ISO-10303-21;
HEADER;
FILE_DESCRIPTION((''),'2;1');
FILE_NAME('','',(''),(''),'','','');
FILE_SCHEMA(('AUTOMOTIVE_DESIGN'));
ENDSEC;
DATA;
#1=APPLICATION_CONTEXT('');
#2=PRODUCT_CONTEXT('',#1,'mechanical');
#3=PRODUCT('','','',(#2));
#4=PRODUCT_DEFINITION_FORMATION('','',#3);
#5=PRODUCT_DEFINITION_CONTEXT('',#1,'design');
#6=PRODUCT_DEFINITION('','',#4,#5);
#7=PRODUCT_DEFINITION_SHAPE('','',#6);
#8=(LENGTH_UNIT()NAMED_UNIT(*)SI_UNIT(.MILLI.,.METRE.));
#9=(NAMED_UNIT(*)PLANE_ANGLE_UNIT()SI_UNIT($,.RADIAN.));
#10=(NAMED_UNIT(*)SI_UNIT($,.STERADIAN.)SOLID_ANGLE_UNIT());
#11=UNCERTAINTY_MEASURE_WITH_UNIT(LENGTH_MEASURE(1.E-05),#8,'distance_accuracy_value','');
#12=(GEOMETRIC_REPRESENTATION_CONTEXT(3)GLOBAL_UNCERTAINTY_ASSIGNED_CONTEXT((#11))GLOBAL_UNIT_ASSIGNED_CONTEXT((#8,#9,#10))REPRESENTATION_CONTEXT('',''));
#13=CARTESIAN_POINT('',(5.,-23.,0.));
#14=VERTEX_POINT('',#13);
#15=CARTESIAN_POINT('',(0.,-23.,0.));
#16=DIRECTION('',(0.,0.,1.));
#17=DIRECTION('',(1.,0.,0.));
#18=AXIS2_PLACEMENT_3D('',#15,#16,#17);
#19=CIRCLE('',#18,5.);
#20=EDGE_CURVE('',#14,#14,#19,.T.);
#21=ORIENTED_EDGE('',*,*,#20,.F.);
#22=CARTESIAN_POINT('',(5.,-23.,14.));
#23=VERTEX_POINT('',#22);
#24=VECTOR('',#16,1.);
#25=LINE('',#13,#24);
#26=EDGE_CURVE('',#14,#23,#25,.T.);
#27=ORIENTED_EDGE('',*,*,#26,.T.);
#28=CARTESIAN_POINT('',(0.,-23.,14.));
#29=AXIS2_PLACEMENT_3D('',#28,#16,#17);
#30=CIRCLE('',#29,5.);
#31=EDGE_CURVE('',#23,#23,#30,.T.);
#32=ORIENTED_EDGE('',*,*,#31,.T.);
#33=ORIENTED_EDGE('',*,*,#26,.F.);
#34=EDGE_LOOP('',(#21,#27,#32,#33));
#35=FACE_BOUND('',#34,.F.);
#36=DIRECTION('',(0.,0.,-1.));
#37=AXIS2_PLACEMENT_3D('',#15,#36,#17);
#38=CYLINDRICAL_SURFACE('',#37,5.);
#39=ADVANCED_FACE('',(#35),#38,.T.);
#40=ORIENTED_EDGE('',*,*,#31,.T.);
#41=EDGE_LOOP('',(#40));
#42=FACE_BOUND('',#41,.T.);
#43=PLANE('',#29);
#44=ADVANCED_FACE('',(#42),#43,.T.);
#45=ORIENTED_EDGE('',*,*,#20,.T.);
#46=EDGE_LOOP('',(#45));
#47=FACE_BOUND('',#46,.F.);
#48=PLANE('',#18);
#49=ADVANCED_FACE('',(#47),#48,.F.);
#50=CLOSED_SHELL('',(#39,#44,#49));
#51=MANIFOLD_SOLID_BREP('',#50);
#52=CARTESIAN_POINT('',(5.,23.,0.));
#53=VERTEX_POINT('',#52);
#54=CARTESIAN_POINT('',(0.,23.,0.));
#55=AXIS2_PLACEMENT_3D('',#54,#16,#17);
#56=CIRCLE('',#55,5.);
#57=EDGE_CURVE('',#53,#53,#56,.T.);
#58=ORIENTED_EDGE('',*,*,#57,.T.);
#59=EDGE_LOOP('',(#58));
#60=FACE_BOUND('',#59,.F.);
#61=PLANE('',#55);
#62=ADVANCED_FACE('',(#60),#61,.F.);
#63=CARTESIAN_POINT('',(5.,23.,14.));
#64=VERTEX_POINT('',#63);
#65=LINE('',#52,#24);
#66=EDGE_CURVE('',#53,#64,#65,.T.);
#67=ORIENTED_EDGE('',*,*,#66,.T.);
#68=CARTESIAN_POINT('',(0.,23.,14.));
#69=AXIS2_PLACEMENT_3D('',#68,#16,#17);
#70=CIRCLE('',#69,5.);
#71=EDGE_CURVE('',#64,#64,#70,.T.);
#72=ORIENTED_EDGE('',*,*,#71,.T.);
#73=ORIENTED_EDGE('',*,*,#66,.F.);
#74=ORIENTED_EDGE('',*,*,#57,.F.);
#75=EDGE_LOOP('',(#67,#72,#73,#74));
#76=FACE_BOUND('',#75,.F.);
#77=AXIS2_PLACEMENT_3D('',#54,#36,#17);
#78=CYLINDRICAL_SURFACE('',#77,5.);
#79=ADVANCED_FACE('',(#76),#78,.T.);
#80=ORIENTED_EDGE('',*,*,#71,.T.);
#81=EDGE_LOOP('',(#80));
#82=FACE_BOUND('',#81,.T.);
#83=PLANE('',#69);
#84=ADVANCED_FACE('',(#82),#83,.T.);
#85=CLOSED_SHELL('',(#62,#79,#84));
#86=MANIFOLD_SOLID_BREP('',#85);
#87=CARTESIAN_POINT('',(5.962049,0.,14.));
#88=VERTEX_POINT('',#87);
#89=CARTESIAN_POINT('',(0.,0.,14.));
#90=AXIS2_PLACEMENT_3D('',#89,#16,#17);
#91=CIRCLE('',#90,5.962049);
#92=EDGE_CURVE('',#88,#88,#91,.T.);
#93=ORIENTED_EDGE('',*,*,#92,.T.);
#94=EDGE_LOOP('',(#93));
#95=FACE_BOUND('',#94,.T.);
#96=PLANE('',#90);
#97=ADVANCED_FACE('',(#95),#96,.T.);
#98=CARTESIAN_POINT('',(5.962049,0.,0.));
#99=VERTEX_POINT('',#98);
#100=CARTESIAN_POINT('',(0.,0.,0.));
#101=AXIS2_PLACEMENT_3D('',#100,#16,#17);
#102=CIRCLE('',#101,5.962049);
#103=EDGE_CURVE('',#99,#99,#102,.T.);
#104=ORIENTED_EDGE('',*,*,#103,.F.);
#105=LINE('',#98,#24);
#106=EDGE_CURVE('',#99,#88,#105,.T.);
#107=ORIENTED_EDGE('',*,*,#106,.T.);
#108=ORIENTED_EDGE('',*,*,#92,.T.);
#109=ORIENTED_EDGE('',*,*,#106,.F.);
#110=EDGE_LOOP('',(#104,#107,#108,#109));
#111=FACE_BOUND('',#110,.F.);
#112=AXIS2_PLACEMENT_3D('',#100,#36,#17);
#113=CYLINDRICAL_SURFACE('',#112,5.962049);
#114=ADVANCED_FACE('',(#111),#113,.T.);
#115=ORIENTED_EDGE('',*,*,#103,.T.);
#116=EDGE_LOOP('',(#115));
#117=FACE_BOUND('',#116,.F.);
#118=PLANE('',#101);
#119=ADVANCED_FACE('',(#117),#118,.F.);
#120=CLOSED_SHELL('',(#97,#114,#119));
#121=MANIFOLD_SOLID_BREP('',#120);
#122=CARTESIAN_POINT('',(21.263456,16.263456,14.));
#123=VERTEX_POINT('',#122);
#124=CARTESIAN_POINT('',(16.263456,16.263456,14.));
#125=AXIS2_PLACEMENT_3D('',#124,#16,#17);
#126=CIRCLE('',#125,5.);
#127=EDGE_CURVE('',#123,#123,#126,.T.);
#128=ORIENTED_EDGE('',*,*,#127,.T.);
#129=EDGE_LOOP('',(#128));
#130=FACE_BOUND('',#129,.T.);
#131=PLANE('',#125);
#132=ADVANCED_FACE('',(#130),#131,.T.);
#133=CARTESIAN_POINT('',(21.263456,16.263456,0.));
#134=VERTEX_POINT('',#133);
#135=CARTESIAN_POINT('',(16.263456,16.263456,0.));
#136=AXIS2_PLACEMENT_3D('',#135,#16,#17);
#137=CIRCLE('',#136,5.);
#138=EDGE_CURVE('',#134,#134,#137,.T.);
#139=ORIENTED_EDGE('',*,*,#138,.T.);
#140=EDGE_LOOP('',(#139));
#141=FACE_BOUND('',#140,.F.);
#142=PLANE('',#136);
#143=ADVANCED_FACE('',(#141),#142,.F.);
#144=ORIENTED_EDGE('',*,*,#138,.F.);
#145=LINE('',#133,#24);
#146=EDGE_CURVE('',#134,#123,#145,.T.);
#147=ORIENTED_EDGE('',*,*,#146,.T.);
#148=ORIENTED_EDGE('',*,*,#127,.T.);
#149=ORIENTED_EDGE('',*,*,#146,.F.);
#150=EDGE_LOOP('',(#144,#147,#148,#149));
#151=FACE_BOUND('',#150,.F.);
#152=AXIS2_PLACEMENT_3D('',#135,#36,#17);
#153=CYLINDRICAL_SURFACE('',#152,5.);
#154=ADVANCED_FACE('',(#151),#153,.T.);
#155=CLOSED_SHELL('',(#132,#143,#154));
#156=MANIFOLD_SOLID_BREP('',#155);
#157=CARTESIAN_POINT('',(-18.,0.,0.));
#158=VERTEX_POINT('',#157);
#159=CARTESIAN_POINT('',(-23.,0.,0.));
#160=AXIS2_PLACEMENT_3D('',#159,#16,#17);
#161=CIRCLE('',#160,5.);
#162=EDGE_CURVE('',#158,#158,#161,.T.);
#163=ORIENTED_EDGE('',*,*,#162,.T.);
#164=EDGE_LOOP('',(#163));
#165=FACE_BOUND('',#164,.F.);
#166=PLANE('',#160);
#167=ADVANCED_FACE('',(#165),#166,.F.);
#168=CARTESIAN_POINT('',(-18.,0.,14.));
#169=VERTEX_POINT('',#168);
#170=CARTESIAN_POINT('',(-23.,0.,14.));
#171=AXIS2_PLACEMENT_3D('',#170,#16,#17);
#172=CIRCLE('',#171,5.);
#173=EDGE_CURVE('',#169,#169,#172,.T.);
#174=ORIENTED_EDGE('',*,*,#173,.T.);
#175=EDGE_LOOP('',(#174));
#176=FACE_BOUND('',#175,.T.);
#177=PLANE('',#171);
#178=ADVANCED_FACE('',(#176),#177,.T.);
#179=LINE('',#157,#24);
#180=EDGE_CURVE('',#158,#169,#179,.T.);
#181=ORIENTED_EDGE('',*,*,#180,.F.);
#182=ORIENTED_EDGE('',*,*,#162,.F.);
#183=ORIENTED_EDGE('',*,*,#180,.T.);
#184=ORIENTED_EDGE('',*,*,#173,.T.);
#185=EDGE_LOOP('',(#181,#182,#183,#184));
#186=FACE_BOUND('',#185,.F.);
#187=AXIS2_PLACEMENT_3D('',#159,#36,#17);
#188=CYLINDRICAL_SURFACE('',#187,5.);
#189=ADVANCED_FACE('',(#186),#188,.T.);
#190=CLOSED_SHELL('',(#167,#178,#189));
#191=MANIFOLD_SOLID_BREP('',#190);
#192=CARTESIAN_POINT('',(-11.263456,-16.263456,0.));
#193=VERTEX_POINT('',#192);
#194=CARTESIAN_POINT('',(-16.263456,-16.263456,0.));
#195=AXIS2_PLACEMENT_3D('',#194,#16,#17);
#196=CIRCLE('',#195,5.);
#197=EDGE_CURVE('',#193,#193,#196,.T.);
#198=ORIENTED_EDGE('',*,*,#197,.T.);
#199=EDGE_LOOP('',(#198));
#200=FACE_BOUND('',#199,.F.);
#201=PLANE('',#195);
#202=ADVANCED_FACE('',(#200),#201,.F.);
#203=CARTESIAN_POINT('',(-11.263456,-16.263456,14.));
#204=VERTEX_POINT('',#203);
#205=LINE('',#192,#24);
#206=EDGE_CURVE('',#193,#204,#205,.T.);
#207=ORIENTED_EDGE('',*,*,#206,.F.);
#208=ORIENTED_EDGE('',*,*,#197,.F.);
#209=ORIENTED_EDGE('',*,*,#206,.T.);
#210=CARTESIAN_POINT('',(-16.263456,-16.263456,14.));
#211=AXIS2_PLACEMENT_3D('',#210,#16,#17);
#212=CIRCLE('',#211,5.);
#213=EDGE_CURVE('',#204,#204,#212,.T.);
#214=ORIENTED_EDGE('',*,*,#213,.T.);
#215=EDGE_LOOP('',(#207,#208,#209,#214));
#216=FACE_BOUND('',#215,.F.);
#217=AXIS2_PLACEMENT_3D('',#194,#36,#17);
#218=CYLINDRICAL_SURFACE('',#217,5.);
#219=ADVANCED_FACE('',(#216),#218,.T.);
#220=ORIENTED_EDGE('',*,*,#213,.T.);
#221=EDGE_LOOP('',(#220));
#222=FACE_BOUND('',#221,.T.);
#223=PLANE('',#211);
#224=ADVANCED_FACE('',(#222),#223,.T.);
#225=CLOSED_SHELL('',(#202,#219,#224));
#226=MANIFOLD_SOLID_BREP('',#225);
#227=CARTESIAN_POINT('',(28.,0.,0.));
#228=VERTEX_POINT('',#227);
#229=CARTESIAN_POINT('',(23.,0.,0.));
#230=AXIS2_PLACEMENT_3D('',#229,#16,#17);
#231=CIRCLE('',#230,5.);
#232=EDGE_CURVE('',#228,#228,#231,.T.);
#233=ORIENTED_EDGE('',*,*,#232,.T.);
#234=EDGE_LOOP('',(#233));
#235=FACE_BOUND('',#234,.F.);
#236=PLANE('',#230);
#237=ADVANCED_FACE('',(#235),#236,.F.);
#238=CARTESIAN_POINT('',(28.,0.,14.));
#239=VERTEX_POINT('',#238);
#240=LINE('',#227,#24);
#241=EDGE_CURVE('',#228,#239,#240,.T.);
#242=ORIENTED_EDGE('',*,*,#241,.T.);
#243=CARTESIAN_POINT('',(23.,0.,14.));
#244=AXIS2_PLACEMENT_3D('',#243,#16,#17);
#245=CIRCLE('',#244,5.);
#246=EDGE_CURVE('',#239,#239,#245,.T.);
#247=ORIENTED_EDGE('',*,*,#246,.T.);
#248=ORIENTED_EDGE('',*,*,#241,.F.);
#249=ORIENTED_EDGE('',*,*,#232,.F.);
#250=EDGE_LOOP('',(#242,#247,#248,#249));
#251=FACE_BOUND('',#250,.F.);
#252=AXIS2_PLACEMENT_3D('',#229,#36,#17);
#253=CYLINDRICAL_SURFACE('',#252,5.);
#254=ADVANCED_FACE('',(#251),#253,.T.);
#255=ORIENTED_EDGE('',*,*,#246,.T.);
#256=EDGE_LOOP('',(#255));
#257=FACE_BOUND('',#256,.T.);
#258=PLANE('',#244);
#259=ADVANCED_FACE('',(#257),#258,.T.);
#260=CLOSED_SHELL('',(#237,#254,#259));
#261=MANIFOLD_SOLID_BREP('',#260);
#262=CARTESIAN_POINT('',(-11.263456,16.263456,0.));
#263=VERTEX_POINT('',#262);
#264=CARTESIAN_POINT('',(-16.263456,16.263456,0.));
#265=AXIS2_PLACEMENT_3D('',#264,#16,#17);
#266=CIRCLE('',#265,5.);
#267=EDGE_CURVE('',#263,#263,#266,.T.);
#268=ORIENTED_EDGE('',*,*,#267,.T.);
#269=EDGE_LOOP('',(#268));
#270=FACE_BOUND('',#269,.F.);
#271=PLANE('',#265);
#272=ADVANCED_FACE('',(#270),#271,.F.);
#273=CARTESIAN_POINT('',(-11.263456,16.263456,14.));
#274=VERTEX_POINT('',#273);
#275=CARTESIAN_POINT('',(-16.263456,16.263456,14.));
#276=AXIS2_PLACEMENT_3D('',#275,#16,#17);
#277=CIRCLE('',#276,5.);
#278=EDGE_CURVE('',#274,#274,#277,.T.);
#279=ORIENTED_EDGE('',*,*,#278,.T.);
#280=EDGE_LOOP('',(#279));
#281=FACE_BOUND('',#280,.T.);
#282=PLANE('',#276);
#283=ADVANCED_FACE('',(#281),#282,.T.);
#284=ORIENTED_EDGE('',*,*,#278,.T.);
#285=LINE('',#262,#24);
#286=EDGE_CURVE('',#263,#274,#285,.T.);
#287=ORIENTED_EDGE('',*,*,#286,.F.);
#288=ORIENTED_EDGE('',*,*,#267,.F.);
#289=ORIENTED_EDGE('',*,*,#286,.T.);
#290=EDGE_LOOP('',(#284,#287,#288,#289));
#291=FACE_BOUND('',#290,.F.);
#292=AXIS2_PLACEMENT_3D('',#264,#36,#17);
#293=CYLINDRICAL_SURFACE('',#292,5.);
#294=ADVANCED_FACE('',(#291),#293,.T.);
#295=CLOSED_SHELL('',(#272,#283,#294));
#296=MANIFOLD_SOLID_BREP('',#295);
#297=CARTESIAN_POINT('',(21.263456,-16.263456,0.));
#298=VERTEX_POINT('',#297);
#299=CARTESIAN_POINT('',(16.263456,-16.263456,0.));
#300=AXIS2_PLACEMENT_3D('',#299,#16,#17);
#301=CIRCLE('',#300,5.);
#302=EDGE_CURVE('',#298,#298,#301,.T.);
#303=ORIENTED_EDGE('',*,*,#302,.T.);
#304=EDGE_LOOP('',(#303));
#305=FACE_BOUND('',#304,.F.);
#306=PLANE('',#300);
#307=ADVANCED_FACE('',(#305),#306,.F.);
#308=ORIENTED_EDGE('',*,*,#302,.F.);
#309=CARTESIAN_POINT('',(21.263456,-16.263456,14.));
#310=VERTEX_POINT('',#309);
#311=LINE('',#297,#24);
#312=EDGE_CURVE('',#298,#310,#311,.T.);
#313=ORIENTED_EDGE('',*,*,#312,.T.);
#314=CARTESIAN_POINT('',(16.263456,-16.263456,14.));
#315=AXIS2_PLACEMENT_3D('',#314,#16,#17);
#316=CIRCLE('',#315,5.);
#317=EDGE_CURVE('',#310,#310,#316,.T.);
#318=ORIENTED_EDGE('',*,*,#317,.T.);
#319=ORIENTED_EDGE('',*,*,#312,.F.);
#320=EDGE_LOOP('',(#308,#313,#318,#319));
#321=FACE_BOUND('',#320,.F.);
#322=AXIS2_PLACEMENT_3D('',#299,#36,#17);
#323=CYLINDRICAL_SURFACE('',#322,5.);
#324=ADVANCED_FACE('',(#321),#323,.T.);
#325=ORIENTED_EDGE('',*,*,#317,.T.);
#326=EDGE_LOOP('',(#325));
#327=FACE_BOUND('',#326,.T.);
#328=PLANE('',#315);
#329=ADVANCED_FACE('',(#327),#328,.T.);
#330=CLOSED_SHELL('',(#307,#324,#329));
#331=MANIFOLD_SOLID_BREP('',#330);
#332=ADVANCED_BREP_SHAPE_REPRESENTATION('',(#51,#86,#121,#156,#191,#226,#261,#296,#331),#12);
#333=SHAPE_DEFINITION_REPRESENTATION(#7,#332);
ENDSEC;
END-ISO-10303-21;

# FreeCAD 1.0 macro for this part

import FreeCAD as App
import Part
import Sketcher
from FreeCAD import Vector

doc = App.newDocument("Part")
body = doc.addObject("PartDesign::Body", "Body")
body.AllowCompound = True

sketch1 = doc.addObject("Sketcher::SketchObject", "Sketch")
body.addObject(sketch1)
sketch1.AttachmentSupport = (doc.XY_Plane, [""])
sketch1.MapMode = "FlatFace"
sketch1.addGeometry(Part.Circle(Vector(0, 0, 0), Vector(0, 0, 1), 6), False)
sketch1.addGeometry(Part.Circle(Vector(0, 23, 0), Vector(0, 0, 1), 5), False)
sketch1.addGeometry(Part.Circle(Vector(-16, 16, 0), Vector(0, 0, 1), 5), False)
sketch1.addGeometry(Part.Circle(Vector(-23, 0, 0), Vector(0, 0, 1), 5), False)
sketch1.addGeometry(Part.Circle(Vector(-16, -16, 0), Vector(0, 0, 1), 5), False)
sketch1.addGeometry(Part.Circle(Vector(0, -23, 0), Vector(0, 0, 1), 5), False)
sketch1.addGeometry(Part.Circle(Vector(16, -16, 0), Vector(0, 0, 1), 5), False)
sketch1.addGeometry(Part.Circle(Vector(23, 0, 0), Vector(0, 0, 1), 5), False)
sketch1.addGeometry(Part.Circle(Vector(16, 16, 0), Vector(0, 0, 1), 5), False)
sketch1.addConstraint(Sketcher.Constraint("Coincident", 0, 3, -1, 1))
sketch1.addConstraint(Sketcher.Constraint("Equal", 1, 2))
sketch1.addConstraint(Sketcher.Constraint("Equal", 2, 3))
sketch1.addConstraint(Sketcher.Constraint("Equal", 3, 4))
sketch1.addConstraint(Sketcher.Constraint("Equal", 4, 5))
sketch1.addConstraint(Sketcher.Constraint("Equal", 5, 6))
sketch1.addConstraint(Sketcher.Constraint("Equal", 6, 7))
sketch1.addConstraint(Sketcher.Constraint("Equal", 7, 8))
sketch1.addConstraint(Sketcher.Constraint("Symmetric", 1, 3, 5, 3, -1, 1))
sketch1.addConstraint(Sketcher.Constraint("Symmetric", 2, 3, 6, 3, -1, 1))
sketch1.addConstraint(Sketcher.Constraint("Symmetric", 3, 3, 7, 3, -1, 1))
sketch1.addConstraint(Sketcher.Constraint("Symmetric", 4, 3, 8, 3, -1, 1))
sketch1.addConstraint(Sketcher.Constraint("Symmetric", 4, 3, 6, 3, -2))
sketch1.addConstraint(Sketcher.Constraint("PointOnObject", 1, 3, -2))
sketch1.addConstraint(Sketcher.Constraint("PointOnObject", 3, 3, -1))
sketch1.addConstraint(Sketcher.Constraint("Diameter", 1, 10.0))
sketch1.addConstraint(Sketcher.Constraint("DistanceY", -1, 1, 1, 3, 23.0))
sketch1.addConstraint(Sketcher.Constraint("DistanceX", 3, 3, -1, 1, 23.0))
sketch1.addConstraint(Sketcher.Constraint("Diameter", 0, 11.924098))
sketch1.addConstraint(Sketcher.Constraint("DistanceX", 2, 3, -1, 1, 16.263456))
sketch1.addConstraint(Sketcher.Constraint("DistanceY", -1, 1, 2, 3, 16.263456))
pad1 = doc.addObject("PartDesign::Pad", "Pad")
body.addObject(pad1)
pad1.Profile = sketch1
pad1.Length = 14

doc.recompute()
